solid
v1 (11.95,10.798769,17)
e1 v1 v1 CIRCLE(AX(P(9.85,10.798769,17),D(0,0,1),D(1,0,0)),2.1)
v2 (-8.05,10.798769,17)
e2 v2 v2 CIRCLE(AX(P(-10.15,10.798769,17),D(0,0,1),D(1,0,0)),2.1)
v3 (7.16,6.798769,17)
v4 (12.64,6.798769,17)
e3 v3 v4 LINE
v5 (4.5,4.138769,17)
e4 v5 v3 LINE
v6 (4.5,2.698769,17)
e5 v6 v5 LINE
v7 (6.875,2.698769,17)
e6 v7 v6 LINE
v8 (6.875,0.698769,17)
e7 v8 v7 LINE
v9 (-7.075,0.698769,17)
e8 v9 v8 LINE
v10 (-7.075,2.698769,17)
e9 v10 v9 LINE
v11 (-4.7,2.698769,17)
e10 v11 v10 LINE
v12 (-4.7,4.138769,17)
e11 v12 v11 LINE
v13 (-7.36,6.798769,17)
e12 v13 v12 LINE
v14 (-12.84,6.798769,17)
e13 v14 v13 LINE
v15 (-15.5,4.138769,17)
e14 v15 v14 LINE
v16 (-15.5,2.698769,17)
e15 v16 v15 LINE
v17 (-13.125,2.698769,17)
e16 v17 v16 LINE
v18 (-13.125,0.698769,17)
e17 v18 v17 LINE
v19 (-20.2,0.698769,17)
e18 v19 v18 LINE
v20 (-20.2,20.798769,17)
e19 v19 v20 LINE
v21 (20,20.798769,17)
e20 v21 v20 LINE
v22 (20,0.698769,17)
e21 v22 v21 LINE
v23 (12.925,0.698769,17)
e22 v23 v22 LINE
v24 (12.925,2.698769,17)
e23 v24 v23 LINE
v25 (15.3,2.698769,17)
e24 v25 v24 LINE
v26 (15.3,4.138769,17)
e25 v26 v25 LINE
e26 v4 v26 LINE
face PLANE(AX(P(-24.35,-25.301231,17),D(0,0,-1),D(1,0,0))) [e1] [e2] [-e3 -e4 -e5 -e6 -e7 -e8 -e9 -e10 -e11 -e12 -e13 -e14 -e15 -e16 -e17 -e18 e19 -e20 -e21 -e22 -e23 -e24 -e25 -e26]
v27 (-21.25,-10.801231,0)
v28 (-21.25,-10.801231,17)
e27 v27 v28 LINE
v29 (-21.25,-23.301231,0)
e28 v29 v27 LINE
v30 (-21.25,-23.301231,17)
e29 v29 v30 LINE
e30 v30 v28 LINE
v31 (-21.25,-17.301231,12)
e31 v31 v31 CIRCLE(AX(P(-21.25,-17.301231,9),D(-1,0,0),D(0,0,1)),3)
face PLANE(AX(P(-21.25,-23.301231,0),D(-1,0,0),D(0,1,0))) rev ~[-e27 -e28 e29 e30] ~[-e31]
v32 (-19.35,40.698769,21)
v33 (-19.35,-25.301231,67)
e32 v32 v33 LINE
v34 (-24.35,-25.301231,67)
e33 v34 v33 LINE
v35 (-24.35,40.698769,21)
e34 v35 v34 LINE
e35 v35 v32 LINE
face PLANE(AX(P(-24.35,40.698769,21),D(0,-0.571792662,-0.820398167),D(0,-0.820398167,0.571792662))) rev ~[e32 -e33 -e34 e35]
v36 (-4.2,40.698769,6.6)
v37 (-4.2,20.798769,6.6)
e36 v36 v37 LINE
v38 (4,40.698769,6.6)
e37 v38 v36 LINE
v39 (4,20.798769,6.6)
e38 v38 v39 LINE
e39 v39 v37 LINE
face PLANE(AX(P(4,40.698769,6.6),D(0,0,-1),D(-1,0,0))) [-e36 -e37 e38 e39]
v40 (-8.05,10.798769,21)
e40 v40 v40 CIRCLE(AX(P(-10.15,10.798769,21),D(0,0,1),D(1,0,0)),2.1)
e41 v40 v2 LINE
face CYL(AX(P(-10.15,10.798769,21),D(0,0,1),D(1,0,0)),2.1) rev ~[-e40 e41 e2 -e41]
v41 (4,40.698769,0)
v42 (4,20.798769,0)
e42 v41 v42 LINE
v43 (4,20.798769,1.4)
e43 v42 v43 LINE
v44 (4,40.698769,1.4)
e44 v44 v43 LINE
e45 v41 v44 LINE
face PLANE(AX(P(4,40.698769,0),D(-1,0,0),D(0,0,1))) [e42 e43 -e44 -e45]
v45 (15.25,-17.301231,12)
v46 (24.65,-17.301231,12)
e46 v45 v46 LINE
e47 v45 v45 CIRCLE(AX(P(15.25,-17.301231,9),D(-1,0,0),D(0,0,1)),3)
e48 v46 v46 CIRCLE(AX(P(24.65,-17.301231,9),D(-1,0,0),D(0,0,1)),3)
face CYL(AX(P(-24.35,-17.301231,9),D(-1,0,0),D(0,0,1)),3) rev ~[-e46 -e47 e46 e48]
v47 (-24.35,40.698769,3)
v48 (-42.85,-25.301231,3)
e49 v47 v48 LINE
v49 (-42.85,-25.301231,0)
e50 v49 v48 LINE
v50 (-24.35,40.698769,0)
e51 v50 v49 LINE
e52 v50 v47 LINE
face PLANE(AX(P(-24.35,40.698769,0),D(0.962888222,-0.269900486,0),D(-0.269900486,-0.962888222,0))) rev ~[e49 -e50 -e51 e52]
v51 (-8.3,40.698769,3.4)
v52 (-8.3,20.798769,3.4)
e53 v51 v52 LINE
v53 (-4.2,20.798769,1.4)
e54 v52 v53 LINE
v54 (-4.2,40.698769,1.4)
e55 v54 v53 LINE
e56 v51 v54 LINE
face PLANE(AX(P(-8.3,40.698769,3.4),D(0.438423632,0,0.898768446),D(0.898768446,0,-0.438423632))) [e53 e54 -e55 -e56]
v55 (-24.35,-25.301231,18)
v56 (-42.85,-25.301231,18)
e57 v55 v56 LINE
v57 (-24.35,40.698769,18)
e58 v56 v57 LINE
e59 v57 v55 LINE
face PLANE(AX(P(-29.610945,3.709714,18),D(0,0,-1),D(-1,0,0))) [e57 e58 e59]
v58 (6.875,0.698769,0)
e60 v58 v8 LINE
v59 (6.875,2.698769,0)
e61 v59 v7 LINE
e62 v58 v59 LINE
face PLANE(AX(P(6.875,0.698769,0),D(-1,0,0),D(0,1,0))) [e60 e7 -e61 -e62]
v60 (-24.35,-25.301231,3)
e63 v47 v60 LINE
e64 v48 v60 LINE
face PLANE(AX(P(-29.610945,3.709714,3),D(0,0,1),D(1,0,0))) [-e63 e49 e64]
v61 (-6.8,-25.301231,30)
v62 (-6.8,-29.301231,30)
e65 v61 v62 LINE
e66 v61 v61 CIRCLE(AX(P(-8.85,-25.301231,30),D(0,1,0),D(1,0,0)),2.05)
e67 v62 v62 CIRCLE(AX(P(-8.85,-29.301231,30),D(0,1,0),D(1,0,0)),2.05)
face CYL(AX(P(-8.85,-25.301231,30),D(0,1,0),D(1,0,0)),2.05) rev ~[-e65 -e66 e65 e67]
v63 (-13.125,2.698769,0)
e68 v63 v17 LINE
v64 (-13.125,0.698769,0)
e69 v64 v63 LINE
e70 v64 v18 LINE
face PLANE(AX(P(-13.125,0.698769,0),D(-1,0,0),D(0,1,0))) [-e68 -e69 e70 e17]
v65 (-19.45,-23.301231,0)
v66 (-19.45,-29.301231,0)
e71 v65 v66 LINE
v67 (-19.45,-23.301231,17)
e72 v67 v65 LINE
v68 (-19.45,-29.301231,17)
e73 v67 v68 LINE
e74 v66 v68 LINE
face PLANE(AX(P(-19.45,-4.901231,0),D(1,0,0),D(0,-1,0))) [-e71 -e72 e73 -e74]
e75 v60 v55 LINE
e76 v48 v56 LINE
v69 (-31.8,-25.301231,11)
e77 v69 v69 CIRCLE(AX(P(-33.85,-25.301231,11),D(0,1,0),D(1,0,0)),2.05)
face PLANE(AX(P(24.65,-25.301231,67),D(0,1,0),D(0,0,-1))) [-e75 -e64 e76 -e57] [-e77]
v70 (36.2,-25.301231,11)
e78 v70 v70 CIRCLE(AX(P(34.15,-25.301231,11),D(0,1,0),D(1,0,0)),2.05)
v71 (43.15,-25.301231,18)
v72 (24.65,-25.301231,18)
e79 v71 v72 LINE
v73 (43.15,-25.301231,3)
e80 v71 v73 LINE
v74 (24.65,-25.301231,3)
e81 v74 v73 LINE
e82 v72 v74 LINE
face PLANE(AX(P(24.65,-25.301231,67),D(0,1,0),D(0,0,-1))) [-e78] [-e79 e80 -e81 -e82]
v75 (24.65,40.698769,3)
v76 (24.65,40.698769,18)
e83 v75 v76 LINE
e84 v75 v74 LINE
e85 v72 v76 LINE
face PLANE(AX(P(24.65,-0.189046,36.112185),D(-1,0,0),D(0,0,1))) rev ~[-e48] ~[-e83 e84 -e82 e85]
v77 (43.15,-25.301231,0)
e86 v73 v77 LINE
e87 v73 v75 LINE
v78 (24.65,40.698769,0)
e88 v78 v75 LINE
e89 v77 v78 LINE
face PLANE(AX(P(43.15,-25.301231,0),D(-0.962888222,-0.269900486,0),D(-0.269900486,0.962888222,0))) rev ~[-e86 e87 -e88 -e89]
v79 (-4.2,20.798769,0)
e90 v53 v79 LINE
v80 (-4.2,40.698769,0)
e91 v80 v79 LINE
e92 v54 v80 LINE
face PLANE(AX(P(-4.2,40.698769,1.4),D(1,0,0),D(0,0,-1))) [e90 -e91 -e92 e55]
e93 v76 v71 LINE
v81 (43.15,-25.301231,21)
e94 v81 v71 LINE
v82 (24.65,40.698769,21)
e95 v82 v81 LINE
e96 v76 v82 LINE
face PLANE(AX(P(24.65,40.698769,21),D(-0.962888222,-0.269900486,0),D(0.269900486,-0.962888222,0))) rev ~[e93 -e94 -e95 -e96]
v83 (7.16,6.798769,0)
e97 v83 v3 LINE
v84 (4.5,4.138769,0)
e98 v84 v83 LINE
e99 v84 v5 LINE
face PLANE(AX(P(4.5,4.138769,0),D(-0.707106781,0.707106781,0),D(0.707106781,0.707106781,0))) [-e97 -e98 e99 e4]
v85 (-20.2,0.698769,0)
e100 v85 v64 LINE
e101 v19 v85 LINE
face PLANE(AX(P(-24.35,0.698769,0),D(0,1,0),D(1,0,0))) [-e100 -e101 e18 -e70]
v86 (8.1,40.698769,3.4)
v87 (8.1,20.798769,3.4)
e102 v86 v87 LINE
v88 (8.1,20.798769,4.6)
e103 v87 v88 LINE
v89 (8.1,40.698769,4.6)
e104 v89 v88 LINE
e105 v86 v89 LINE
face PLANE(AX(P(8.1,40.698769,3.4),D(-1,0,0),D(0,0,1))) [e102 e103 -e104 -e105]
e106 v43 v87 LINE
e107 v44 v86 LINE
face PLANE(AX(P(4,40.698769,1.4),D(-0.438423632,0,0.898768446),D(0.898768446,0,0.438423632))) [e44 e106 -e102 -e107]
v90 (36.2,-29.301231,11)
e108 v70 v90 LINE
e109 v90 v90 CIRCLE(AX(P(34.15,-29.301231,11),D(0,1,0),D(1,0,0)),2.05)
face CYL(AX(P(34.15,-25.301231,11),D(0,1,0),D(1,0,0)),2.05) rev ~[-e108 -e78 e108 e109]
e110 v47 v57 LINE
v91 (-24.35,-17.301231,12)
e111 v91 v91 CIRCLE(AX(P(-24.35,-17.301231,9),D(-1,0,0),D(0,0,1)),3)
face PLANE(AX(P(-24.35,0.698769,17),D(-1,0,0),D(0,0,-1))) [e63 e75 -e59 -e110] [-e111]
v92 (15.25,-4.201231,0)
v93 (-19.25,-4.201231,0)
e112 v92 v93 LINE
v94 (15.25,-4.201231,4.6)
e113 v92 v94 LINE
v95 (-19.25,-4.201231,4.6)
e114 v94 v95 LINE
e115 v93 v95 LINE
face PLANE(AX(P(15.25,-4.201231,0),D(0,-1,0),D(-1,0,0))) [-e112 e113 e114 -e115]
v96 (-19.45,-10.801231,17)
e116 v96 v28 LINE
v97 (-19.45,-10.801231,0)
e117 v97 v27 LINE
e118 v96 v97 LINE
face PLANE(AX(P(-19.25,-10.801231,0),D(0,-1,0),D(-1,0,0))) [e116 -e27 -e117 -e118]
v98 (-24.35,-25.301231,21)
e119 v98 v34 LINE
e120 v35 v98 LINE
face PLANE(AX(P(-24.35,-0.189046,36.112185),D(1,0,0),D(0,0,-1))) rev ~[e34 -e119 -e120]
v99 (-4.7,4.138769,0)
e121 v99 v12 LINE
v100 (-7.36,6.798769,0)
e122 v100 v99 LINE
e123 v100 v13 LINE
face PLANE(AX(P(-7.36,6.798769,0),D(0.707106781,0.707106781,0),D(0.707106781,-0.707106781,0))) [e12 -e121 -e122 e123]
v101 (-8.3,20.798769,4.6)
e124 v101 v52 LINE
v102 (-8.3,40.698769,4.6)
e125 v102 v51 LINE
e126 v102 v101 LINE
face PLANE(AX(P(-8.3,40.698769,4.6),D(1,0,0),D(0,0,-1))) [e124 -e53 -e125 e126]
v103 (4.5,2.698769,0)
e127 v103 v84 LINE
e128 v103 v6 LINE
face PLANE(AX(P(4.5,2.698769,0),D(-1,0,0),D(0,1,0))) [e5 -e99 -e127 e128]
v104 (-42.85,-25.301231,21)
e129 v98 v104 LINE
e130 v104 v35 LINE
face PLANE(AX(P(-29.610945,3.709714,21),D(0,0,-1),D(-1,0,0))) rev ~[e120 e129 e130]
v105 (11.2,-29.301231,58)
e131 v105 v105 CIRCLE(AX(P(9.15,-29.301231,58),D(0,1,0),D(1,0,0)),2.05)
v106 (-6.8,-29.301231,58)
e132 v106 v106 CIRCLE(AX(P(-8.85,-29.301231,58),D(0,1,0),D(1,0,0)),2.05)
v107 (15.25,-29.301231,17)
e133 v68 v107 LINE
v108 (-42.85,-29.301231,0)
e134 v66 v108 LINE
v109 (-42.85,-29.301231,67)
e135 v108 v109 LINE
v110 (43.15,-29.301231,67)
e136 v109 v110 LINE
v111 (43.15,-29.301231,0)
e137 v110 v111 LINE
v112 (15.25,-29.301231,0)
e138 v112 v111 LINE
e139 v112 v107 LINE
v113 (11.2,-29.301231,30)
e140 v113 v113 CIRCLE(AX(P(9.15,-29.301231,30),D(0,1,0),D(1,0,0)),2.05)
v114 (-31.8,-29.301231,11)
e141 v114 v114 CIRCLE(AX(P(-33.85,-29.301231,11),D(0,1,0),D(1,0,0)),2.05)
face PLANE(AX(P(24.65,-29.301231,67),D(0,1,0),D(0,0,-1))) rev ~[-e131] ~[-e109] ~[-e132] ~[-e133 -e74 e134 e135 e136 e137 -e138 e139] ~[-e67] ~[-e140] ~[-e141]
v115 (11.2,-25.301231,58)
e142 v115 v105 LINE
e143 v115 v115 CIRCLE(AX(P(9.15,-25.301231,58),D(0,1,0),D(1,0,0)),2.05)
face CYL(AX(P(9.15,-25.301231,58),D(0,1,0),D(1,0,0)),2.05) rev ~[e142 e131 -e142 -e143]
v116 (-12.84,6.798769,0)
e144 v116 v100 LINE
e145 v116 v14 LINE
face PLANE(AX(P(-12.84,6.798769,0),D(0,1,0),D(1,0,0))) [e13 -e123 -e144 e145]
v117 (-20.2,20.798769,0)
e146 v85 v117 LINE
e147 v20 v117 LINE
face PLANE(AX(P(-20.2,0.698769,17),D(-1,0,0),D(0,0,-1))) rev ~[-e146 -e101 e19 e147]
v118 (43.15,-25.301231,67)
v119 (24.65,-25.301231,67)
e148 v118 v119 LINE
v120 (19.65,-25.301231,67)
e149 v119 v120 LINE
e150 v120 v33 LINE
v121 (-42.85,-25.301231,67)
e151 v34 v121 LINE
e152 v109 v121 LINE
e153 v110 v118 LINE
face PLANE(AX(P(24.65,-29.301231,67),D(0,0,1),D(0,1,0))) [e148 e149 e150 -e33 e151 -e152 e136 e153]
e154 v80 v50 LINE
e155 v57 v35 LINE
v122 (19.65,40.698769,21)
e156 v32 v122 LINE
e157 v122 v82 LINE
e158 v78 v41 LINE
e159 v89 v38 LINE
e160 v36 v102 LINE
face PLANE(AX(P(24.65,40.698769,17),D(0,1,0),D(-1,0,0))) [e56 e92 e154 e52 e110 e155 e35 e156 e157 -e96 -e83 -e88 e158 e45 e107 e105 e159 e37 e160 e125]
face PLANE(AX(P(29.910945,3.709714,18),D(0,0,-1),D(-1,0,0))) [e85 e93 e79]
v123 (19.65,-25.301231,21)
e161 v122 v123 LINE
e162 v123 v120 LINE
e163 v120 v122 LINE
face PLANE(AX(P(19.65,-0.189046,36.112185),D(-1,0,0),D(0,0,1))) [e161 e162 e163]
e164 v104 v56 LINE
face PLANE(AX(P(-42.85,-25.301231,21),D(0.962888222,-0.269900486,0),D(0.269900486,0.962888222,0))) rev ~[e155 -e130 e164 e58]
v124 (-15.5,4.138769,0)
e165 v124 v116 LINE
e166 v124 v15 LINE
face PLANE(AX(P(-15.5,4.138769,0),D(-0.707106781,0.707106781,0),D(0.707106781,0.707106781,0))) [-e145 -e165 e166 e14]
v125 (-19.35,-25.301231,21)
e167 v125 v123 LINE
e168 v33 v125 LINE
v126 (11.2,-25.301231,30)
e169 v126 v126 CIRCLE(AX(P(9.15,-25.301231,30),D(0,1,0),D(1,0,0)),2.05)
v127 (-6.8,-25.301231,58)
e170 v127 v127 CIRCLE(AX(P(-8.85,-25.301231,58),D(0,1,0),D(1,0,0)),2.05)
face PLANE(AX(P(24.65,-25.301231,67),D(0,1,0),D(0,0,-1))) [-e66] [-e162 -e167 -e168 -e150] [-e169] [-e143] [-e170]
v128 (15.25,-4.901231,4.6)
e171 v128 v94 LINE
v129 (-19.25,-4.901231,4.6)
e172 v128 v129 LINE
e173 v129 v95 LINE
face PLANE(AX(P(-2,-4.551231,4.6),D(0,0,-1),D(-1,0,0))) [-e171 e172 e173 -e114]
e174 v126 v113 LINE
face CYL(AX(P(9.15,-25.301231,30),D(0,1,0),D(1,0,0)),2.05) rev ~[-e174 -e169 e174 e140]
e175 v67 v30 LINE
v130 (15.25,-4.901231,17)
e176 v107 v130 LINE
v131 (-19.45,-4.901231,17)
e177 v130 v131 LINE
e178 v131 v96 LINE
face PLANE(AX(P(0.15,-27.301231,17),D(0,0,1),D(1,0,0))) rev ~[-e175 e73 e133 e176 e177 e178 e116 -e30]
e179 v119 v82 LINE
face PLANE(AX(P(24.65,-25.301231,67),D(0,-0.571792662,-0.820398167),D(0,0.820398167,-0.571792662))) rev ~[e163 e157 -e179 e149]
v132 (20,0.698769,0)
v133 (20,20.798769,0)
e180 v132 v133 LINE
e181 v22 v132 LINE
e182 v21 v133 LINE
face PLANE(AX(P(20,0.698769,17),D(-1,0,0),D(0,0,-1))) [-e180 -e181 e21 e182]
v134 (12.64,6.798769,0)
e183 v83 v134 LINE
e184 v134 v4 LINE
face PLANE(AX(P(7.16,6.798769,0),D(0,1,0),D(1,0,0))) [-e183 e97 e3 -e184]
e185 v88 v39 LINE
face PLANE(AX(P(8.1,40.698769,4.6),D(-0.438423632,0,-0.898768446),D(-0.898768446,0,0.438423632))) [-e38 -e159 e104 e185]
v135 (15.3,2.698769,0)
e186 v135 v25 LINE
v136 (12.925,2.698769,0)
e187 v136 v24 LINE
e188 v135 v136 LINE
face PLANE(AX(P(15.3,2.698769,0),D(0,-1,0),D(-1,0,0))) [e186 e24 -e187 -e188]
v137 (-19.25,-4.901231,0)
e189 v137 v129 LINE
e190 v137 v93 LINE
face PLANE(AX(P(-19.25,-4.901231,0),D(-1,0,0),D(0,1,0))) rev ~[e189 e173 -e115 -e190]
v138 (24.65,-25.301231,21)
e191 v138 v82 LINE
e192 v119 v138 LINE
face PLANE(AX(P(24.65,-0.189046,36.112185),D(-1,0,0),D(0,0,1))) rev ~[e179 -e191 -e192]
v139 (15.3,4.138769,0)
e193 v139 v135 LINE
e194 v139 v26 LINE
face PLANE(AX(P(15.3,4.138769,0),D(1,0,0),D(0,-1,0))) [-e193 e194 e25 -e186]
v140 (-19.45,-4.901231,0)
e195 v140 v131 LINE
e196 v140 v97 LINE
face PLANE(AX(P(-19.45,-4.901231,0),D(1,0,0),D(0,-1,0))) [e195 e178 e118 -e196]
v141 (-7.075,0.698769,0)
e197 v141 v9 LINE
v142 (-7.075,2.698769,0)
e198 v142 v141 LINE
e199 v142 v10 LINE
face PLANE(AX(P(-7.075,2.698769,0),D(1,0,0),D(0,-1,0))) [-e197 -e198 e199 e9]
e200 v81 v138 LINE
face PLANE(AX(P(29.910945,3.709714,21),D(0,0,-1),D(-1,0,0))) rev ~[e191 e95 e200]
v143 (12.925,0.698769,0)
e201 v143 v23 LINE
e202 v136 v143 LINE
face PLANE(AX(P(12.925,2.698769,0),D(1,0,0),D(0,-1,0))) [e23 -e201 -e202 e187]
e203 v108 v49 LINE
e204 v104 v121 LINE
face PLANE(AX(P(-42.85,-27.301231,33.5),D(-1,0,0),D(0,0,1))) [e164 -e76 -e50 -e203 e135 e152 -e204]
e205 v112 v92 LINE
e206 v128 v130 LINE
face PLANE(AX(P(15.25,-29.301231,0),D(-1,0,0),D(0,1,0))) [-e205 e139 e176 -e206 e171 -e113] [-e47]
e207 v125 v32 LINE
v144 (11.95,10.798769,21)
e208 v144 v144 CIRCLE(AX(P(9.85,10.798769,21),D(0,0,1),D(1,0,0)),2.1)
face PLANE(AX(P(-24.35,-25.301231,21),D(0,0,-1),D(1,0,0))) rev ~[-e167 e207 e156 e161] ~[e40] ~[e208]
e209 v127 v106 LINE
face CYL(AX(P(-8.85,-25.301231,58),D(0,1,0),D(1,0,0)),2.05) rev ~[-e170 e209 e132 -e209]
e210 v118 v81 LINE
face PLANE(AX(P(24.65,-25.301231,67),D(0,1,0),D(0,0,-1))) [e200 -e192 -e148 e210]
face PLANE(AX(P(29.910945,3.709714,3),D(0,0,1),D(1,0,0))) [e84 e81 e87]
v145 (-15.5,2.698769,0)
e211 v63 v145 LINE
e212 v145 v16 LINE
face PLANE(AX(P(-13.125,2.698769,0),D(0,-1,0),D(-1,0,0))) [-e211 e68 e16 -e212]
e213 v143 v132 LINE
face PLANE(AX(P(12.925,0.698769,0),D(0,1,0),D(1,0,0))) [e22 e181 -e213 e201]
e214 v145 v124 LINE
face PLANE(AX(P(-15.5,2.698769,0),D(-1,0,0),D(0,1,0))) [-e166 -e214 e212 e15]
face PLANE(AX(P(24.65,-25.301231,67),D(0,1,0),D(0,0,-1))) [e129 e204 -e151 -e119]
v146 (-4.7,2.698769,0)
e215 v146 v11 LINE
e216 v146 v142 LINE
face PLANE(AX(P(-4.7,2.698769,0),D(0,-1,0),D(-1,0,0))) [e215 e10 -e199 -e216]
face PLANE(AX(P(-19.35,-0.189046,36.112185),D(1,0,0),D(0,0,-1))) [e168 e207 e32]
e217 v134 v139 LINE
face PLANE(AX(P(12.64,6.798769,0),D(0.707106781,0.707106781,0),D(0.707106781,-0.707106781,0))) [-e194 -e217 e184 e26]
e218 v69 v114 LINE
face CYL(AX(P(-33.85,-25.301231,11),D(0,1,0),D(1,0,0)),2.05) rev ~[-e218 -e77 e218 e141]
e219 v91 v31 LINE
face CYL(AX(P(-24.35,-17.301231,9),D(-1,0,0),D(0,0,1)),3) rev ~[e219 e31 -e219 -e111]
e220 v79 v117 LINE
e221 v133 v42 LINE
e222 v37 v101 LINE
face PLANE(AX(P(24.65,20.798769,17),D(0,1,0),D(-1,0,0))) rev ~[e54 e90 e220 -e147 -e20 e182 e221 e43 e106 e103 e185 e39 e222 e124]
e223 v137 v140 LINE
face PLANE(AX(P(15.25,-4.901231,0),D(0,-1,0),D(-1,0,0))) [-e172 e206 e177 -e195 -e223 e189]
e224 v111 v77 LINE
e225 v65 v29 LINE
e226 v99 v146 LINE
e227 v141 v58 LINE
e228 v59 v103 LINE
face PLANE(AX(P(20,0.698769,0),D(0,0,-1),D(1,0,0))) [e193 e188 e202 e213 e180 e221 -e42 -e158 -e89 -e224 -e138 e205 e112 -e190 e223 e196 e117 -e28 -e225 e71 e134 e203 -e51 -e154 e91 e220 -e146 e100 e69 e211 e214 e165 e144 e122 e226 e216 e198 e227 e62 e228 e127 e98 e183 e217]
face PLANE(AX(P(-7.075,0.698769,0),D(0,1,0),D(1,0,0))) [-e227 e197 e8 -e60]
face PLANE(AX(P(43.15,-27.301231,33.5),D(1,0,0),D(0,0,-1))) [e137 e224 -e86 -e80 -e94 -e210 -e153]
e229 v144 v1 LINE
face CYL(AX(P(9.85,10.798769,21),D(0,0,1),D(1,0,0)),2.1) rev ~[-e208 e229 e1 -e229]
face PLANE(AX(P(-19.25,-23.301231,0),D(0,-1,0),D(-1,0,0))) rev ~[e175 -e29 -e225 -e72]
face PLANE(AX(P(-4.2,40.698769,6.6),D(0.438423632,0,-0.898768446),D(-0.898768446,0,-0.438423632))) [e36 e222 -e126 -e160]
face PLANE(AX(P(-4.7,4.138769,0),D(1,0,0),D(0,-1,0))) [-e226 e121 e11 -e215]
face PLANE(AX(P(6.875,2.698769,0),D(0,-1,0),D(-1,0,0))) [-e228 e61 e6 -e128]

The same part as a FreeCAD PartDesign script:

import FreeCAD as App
import Part
import Sketcher

V = App.Vector


def add_polygon(sketch, points):
    """Adds a closed chain of lines whose ends are joined by coincident constraints."""
    first, n = sketch.GeometryCount, len(points)
    for a, b in zip(points, points[1:] + points[:1]):
        sketch.addGeometry(Part.LineSegment(App.Vector(*a, 0), App.Vector(*b, 0)), False)
    for i in range(n):
        sketch.addConstraint(Sketcher.Constraint("Coincident", first + i, 2, first + (i + 1) % n, 1))

doc = App.newDocument("Part")
body = doc.addObject("PartDesign::Body", "Body")

sketch1 = body.newObject("Sketcher::SketchObject", "Sketch")
sketch1.AttachmentSupport = (doc.getObject("XY_Plane"), [""])
sketch1.MapMode = "FlatFace"
add_polygon(sketch1, [(-15.5, 2.7), (-13.1, 2.7), (-13.1, 0.7), (-24.4, 0.7), (-24.4, -29.3), (-19.4, -29.3), (-19.4, -4.9), (15.2, -4.9), (15.2, -29.3), (24.6, -29.3), (24.6, 0.7), (12.9, 0.7), (12.9, 2.7), (15.3, 2.7), (15.3, 4.1), (12.6, 6.8), (7.2, 6.8), (4.5, 4.1), (4.5, 2.7), (6.9, 2.7), (6.9, 0.7), (-7.1, 0.7), (-7.1, 2.7), (-4.7, 2.7), (-4.7, 4.1), (-7.4, 6.8), (-12.8, 6.8), (-15.5, 4.1)])
sketch1.addConstraint([
    Sketcher.Constraint("Horizontal", 0),
    Sketcher.Constraint("Vertical", 1),
    Sketcher.Constraint("Horizontal", 2),
    Sketcher.Constraint("Vertical", 3),
    Sketcher.Constraint("Horizontal", 4),
    Sketcher.Constraint("Vertical", 5),
    Sketcher.Constraint("Horizontal", 6),
    Sketcher.Constraint("Vertical", 7),
    Sketcher.Constraint("Horizontal", 8),
    Sketcher.Constraint("Vertical", 9),
    Sketcher.Constraint("Horizontal", 10),
    Sketcher.Constraint("Vertical", 11),
    Sketcher.Constraint("Horizontal", 12),
    Sketcher.Constraint("Vertical", 13),
    Sketcher.Constraint("Horizontal", 15),
    Sketcher.Constraint("Vertical", 17),
    Sketcher.Constraint("Horizontal", 18),
    Sketcher.Constraint("Vertical", 19),
    Sketcher.Constraint("Horizontal", 20),
    Sketcher.Constraint("Vertical", 21),
    Sketcher.Constraint("Horizontal", 22),
    Sketcher.Constraint("Vertical", 23),
    Sketcher.Constraint("Horizontal", 25),
    Sketcher.Constraint("Vertical", 27),
    Sketcher.Constraint("Perpendicular", 14, 16),
    Sketcher.Constraint("Perpendicular", 16, 24),
    Sketcher.Constraint("Perpendicular", 24, 26),
    Sketcher.Constraint("Horizontal", 4, 2, 7, 2),
    Sketcher.Constraint("Horizontal", 2, 2, 9, 2),
    Sketcher.Constraint("Horizontal", 0, 2, 11, 2),
    Sketcher.Constraint("Horizontal", 13, 2, 16, 2),
    Sketcher.Constraint("Horizontal", 12, 2, 17, 2),
    Sketcher.Constraint("Horizontal", 10, 2, 19, 2),
    Sketcher.Constraint("Horizontal", 18, 2, 21, 2),
    Sketcher.Constraint("Horizontal", 16, 2, 23, 2),
    Sketcher.Constraint("Horizontal", 15, 2, 24, 2),
    Sketcher.Constraint("Horizontal", 23, 2, 26, 2),
    Sketcher.Constraint("Equal", 0, 12),
    Sketcher.Constraint("Equal", 12, 18),
    Sketcher.Constraint("Equal", 18, 22),
    Sketcher.Constraint("Equal", 15, 25),
    Sketcher.Constraint("Equal", 14, 16),
    Sketcher.Constraint("DistanceY", 1, 2, 1, 1, 2.0),
    Sketcher.Constraint("DistanceY", 3, 2, 3, 1, 30.0),
    Sketcher.Constraint("DistanceX", 4, 1, 4, 2, 4.9),
    Sketcher.Constraint("DistanceX", 6, 1, 6, 2, 34.7),
    Sketcher.Constraint("DistanceX", 8, 1, 8, 2, 9.4),
    Sketcher.Constraint("DistanceY", 5, 1, 5, 2, 24.4),
    Sketcher.Constraint("DistanceX", 15, 2, 15, 1, 5.48),
    Sketcher.Constraint("DistanceX", 20, 2, 20, 1, 13.95),
    Sketcher.Constraint("DistanceY", 13, 1, 13, 2, 1.44),
    Sketcher.Constraint("DistanceX", -1, 1, 12, 2, 15.3),
    Sketcher.Constraint("DistanceX", -1, 1, 16, 2, 4.5),
    Sketcher.Constraint("DistanceX", 22, 2, -1, 1, 4.7),
    Sketcher.Constraint("DistanceX", 2, 2, 2, 1, 11.225),
    Sketcher.Constraint("DistanceY", -1, 1, 0, 2, 2.698769),
])
pad1 = body.newObject("PartDesign::Pad", "Pad")
pad1.Profile = sketch1
pad1.Length = 17

sketch2 = body.newObject("Sketcher::SketchObject", "Sketch001")
sketch2.AttachmentSupport = (doc.getObject("YZ_Plane"), [""])
sketch2.MapMode = "FlatFace"
sketch2.AttachmentOffset = App.Placement(V(0, 0, -24.35), App.Rotation())
sketch2.addGeometry(Part.Circle(V(-17.3, 9, 0), V(0, 0, 1), 3), False)
sketch2.addConstraint([
    Sketcher.Constraint("Diameter", 0, 6.0),
    Sketcher.Constraint("DistanceY", -1, 1, 0, 3, 9.0),
    Sketcher.Constraint("DistanceX", 0, 3, -1, 1, 17.301231),
])
pocket1 = body.newObject("PartDesign::Pocket", "Pocket")
pocket1.Profile = sketch2
pocket1.Length = 49
pocket1.Reversed = True

sketch3 = body.newObject("Sketcher::SketchObject", "Sketch002")
sketch3.AttachmentSupport = (doc.getObject("XY_Plane"), [""])
sketch3.MapMode = "FlatFace"
sketch3.AttachmentOffset = App.Placement(V(0, 0, 17), App.Rotation())
add_polygon(sketch3, [(-24.4, -25.3), (-24.4, -29.3), (24.6, -29.3), (24.6, -25.3)])
sketch3.addConstraint([
    Sketcher.Constraint("Vertical", 0),
    Sketcher.Constraint("Horizontal", 1),
    Sketcher.Constraint("Vertical", 2),
    Sketcher.Constraint("Horizontal", 3),
    Sketcher.Constraint("DistanceX", 1, 1, 1, 2, 49.0),
    Sketcher.Constraint("DistanceY", 0, 2, 0, 1, 4.0),
    Sketcher.Constraint("DistanceX", 0, 2, -1, 1, 24.35),
    Sketcher.Constraint("DistanceY", 0, 2, -1, 1, 29.301231),
])
pad2 = body.newObject("PartDesign::Pad", "Pad001")
pad2.Profile = sketch3
pad2.Length = 50

sketch4 = body.newObject("Sketcher::SketchObject", "Sketch003")
sketch4.AttachmentSupport = (doc.getObject("YZ_Plane"), [""])
sketch4.MapMode = "FlatFace"
sketch4.AttachmentOffset = App.Placement(V(0, 0, -24.35), App.Rotation())
add_polygon(sketch4, [(-25.3, 0), (-29.3, 0), (-29.3, 67), (-25.3, 67)])
sketch4.addConstraint([
    Sketcher.Constraint("Horizontal", 0),
    Sketcher.Constraint("Vertical", 1),
    Sketcher.Constraint("Horizontal", 2),
    Sketcher.Constraint("Vertical", 3),
    Sketcher.Constraint("PointOnObject", 0, 2, -1),
    Sketcher.Constraint("DistanceX", 0, 2, 0, 1, 4.0),
    Sketcher.Constraint("DistanceY", 1, 1, 1, 2, 67.0),
    Sketcher.Constraint("DistanceX", 0, 2, -1, 1, 29.301231),
])
pad3 = body.newObject("PartDesign::Pad", "Pad002")
pad3.Profile = sketch4
pad3.Length = 18.5
pad3.Reversed = True

sketch5 = body.newObject("Sketcher::SketchObject", "Sketch004")
sketch5.AttachmentSupport = (doc.getObject("YZ_Plane"), [""])
sketch5.MapMode = "FlatFace"
sketch5.AttachmentOffset = App.Placement(V(0, 0, 24.65), App.Rotation())
add_polygon(sketch5, [(-25.3, 67), (-29.3, 67), (-29.3, 0), (-25.3, 0)])
sketch5.addConstraint([
    Sketcher.Constraint("Horizontal", 0),
    Sketcher.Constraint("Vertical", 1),
    Sketcher.Constraint("Horizontal", 2),
    Sketcher.Constraint("Vertical", 3),
    Sketcher.Constraint("PointOnObject", 1, 2, -1),
    Sketcher.Constraint("DistanceX", 0, 2, 0, 1, 4.0),
    Sketcher.Constraint("DistanceY", 1, 2, 1, 1, 67.0),
    Sketcher.Constraint("DistanceX", 0, 2, -1, 1, 29.301231),
])
pad4 = body.newObject("PartDesign::Pad", "Pad003")
pad4.Profile = sketch5
pad4.Length = 18.5

sketch6 = body.newObject("Sketcher::SketchObject", "Sketch005")
sketch6.AttachmentSupport = (doc.getObject("XZ_Plane"), [""])
sketch6.MapMode = "FlatFace"
sketch6.AttachmentOffset = App.Placement(V(0, 0, 25.301231), App.Rotation())
add_polygon(sketch6, [(-24.4, 17), (-24.4, 21), (24.6, 21), (24.6, 17)])
sketch6.addConstraint([
    Sketcher.Constraint("Vertical", 0),
    Sketcher.Constraint("Horizontal", 1),
    Sketcher.Constraint("Vertical", 2),
    Sketcher.Constraint("Horizontal", 3),
    Sketcher.Constraint("DistanceX", 1, 1, 1, 2, 49.0),
    Sketcher.Constraint("DistanceY", 0, 1, 0, 2, 4.0),
    Sketcher.Constraint("DistanceY", -1, 1, 0, 2, 21.0),
    Sketcher.Constraint("DistanceX", 0, 2, -1, 1, 24.35),
])
pad5 = body.newObject("PartDesign::Pad", "Pad004")
pad5.Profile = sketch6
pad5.Length = 66
pad5.Reversed = True

sketch7 = body.newObject("Sketcher::SketchObject", "Sketch006")
sketch7.AttachmentSupport = (doc.getObject("XY_Plane"), [""])
sketch7.MapMode = "FlatFace"
sketch7.AttachmentOffset = App.Placement(V(0, 0, 17), App.Rotation())
add_polygon(sketch7, [(25, 41), (25, 21), (-24, 21), (-24, 41)])
sketch7.addConstraint([
    Sketcher.Constraint("Vertical", 0),
    Sketcher.Constraint("Horizontal", 1),
    Sketcher.Constraint("Vertical", 2),
    Sketcher.Constraint("Horizontal", 3),
    Sketcher.Constraint("DistanceX", 1, 2, 1, 1, 49.0),
    Sketcher.Constraint("DistanceY", 0, 2, 0, 1, 19.9),
    Sketcher.Constraint("DistanceX", -1, 1, 0, 2, 24.65),
    Sketcher.Constraint("DistanceY", -1, 1, 0, 2, 20.798769),
])
pad6 = body.newObject("PartDesign::Pad", "Pad005")
pad6.Profile = sketch7
pad6.Length = 17
pad6.Reversed = True

sketch8 = body.newObject("Sketcher::SketchObject", "Sketch007")
sketch8.AttachmentSupport = (doc.getObject("XZ_Plane"), [""])
sketch8.MapMode = "FlatFace"
sketch8.AttachmentOffset = App.Placement(V(0, 0, 25.301231), App.Rotation())
sketch8.addGeometry(Part.Circle(V(-8.8, 58, 0), V(0, 0, 1), 2), False)
sketch8.addConstraint([
    Sketcher.Constraint("Diameter", 0, 4.1),
    Sketcher.Constraint("DistanceY", -1, 1, 0, 3, 58.0),
    Sketcher.Constraint("DistanceX", 0, 3, -1, 1, 8.85),
])
pocket2 = body.newObject("PartDesign::Pocket", "Pocket001")
pocket2.Profile = sketch8
pocket2.Type = "UpToFirst"
pocket2.Reversed = True

sketch9 = body.newObject("Sketcher::SketchObject", "Sketch008")
sketch9.AttachmentSupport = (doc.getObject("XZ_Plane"), [""])
sketch9.MapMode = "FlatFace"
sketch9.AttachmentOffset = App.Placement(V(0, 0, 25.301231), App.Rotation())
sketch9.addGeometry(Part.Circle(V(9.2, 58, 0), V(0, 0, 1), 2), False)
sketch9.addConstraint([
    Sketcher.Constraint("Diameter", 0, 4.1),
    Sketcher.Constraint("DistanceY", -1, 1, 0, 3, 58.0),
    Sketcher.Constraint("DistanceX", -1, 1, 0, 3, 9.15),
])
pocket3 = body.newObject("PartDesign::Pocket", "Pocket002")
pocket3.Profile = sketch9
pocket3.Type = "UpToFirst"
pocket3.Reversed = True

sketch10 = body.newObject("Sketcher::SketchObject", "Sketch009")
sketch10.AttachmentSupport = (doc.getObject("XZ_Plane"), [""])
sketch10.MapMode = "FlatFace"
sketch10.AttachmentOffset = App.Placement(V(0, 0, 25.301231), App.Rotation())
sketch10.addGeometry(Part.Circle(V(-33.9, 11, 0), V(0, 0, 1), 2), False)
sketch10.addConstraint([
    Sketcher.Constraint("Diameter", 0, 4.1),
    Sketcher.Constraint("DistanceY", -1, 1, 0, 3, 11.0),
    Sketcher.Constraint("DistanceX", 0, 3, -1, 1, 33.85),
])
pocket4 = body.newObject("PartDesign::Pocket", "Pocket003")
pocket4.Profile = sketch10
pocket4.Type = "UpToFirst"
pocket4.Reversed = True

sketch11 = body.newObject("Sketcher::SketchObject", "Sketch010")
sketch11.AttachmentSupport = (doc.getObject("XZ_Plane"), [""])
sketch11.MapMode = "FlatFace"
sketch11.AttachmentOffset = App.Placement(V(0, 0, 25.301231), App.Rotation())
sketch11.addGeometry(Part.Circle(V(34.1, 11, 0), V(0, 0, 1), 2), False)
sketch11.addConstraint([
    Sketcher.Constraint("Diameter", 0, 4.1),
    Sketcher.Constraint("DistanceY", -1, 1, 0, 3, 11.0),
    Sketcher.Constraint("DistanceX", -1, 1, 0, 3, 34.15),
])
pocket5 = body.newObject("PartDesign::Pocket", "Pocket004")
pocket5.Profile = sketch11
pocket5.Type = "UpToFirst"
pocket5.Reversed = True

sketch12 = body.newObject("Sketcher::SketchObject", "Sketch011")
sketch12.AttachmentSupport = (doc.getObject("XZ_Plane"), [""])
sketch12.MapMode = "FlatFace"
sketch12.AttachmentOffset = App.Placement(V(0, 0, 25.301231), App.Rotation())
sketch12.addGeometry(Part.Circle(V(-8.8, 30, 0), V(0, 0, 1), 2), False)
sketch12.addConstraint([
    Sketcher.Constraint("Diameter", 0, 4.1),
    Sketcher.Constraint("DistanceY", -1, 1, 0, 3, 30.0),
    Sketcher.Constraint("DistanceX", 0, 3, -1, 1, 8.85),
])
pocket6 = body.newObject("PartDesign::Pocket", "Pocket005")
pocket6.Profile = sketch12
pocket6.Type = "UpToFirst"
pocket6.Reversed = True

sketch13 = body.newObject("Sketcher::SketchObject", "Sketch012")
sketch13.AttachmentSupport = (doc.getObject("XZ_Plane"), [""])
sketch13.MapMode = "FlatFace"
sketch13.AttachmentOffset = App.Placement(V(0, 0, 25.301231), App.Rotation())
sketch13.addGeometry(Part.Circle(V(9.2, 30, 0), V(0, 0, 1), 2), False)
sketch13.addConstraint([
    Sketcher.Constraint("Diameter", 0, 4.1),
    Sketcher.Constraint("DistanceY", -1, 1, 0, 3, 30.0),
    Sketcher.Constraint("DistanceX", -1, 1, 0, 3, 9.15),
])
pocket7 = body.newObject("PartDesign::Pocket", "Pocket006")
pocket7.Profile = sketch13
pocket7.Type = "UpToFirst"
pocket7.Reversed = True

sketch14 = body.newObject("Sketcher::SketchObject", "Sketch013")
sketch14.AttachmentSupport = (doc.getObject("YZ_Plane"), [""])
sketch14.MapMode = "FlatFace"
sketch14.AttachmentOffset = App.Placement(V(0, 0, -24.35), App.Rotation())
add_polygon(sketch14, [(41, 21), (-25, 21), (-25, 67)])
sketch14.addConstraint([
    Sketcher.Constraint("Horizontal", 0),
    Sketcher.Constraint("Vertical", 1),
    Sketcher.Constraint("DistanceX", 0, 2, 0, 1, 66.0),
    Sketcher.Constraint("DistanceY", 1, 1, 1, 2, 46.0),
    Sketcher.Constraint("DistanceY", -1, 1, 0, 2, 21.0),
    Sketcher.Constraint("DistanceX", 0, 2, -1, 1, 25.301231),
])
pad7 = body.newObject("PartDesign::Pad", "Pad006")
pad7.Profile = sketch14
pad7.Length = 5

sketch15 = body.newObject("Sketcher::SketchObject", "Sketch014")
sketch15.AttachmentSupport = (doc.getObject("YZ_Plane"), [""])
sketch15.MapMode = "FlatFace"
sketch15.AttachmentOffset = App.Placement(V(0, 0, 24.65), App.Rotation())
add_polygon(sketch15, [(41, 21), (-25, 67), (-25, 21)])
sketch15.addConstraint([
    Sketcher.Constraint("Vertical", 1),
    Sketcher.Constraint("Horizontal", 2),
    Sketcher.Constraint("DistanceX", 2, 1, 2, 2, 66.0),
    Sketcher.Constraint("DistanceY", 1, 2, 1, 1, 46.0),
    Sketcher.Constraint("DistanceY", -1, 1, 0, 2, 67.0),
    Sketcher.Constraint("DistanceX", 0, 2, -1, 1, 25.301231),
])
pad8 = body.newObject("PartDesign::Pad", "Pad007")
pad8.Profile = sketch15
pad8.Length = 5
pad8.Reversed = True

sketch16 = body.newObject("Sketcher::SketchObject", "Sketch015")
sketch16.AttachmentSupport = (doc.getObject("XY_Plane"), [""])
sketch16.MapMode = "FlatFace"
sketch16.AttachmentOffset = App.Placement(V(0, 0, 21), App.Rotation())
sketch16.addGeometry(Part.Circle(V(9.8, 10.8, 0), V(0, 0, 1), 2.1), False)
sketch16.addConstraint([
    Sketcher.Constraint("Diameter", 0, 4.2),
    Sketcher.Constraint("DistanceX", -1, 1, 0, 3, 9.85),
    Sketcher.Constraint("DistanceY", -1, 1, 0, 3, 10.798769),
])
pocket8 = body.newObject("PartDesign::Pocket", "Pocket007")
pocket8.Profile = sketch16
pocket8.Type = "UpToFirst"

sketch17 = body.newObject("Sketcher::SketchObject", "Sketch016")
sketch17.AttachmentSupport = (doc.getObject("XY_Plane"), [""])
sketch17.MapMode = "FlatFace"
sketch17.AttachmentOffset = App.Placement(V(0, 0, 21), App.Rotation())
sketch17.addGeometry(Part.Circle(V(-10.2, 10.8, 0), V(0, 0, 1), 2.1), False)
sketch17.addConstraint([
    Sketcher.Constraint("Diameter", 0, 4.2),
    Sketcher.Constraint("DistanceX", 0, 3, -1, 1, 10.15),
    Sketcher.Constraint("DistanceY", -1, 1, 0, 3, 10.798769),
])
pocket9 = body.newObject("PartDesign::Pocket", "Pocket008")
pocket9.Profile = sketch17
pocket9.Type = "UpToFirst"

sketch18 = body.newObject("Sketcher::SketchObject", "Sketch017")
sketch18.AttachmentSupport = (doc.getObject("XY_Plane"), [""])
sketch18.MapMode = "FlatFace"
add_polygon(sketch18, [(15.2, -4.2), (15.2, -4.9), (-19.2, -4.9), (-19.2, -4.2)])
sketch18.addConstraint([
    Sketcher.Constraint("Vertical", 0),
    Sketcher.Constraint("Horizontal", 1),
    Sketcher.Constraint("Vertical", 2),
    Sketcher.Constraint("Horizontal", 3),
    Sketcher.Constraint("DistanceX", 1, 2, 1, 1, 34.5),
    Sketcher.Constraint("DistanceY", 0, 2, 0, 1, 0.7),
    Sketcher.Constraint("DistanceX", -1, 1, 0, 2, 15.25),
    Sketcher.Constraint("DistanceY", 0, 2, -1, 1, 4.901231),
])
pocket10 = body.newObject("PartDesign::Pocket", "Pocket009")
pocket10.Profile = sketch18
pocket10.Length = 4.6
pocket10.Reversed = True

sketch19 = body.newObject("Sketcher::SketchObject", "Sketch018")
sketch19.AttachmentSupport = (doc.getObject("XY_Plane"), [""])
sketch19.MapMode = "FlatFace"
add_polygon(sketch19, [(25, -25), (25, 41), (43, -25)])
add_polygon(sketch19, [(-24, -25), (-43, -25), (-24, 41)])
sketch19.addConstraint([
    Sketcher.Constraint("Vertical", 0),
    Sketcher.Constraint("Horizontal", 2),
    Sketcher.Constraint("Horizontal", 3),
    Sketcher.Constraint("Vertical", 5),
    Sketcher.Constraint("Horizontal", 2, 2, 3, 2),
    Sketcher.Constraint("Horizontal", 0, 2, 4, 2),
    Sketcher.Constraint("Equal", 2, 3),
    Sketcher.Constraint("DistanceY", 0, 1, 0, 2, 66.0),
    Sketcher.Constraint("DistanceX", 2, 2, 2, 1, 18.5),
    Sketcher.Constraint("DistanceX", 3, 2, 1, 2, 86.0),
    Sketcher.Constraint("DistanceX", -1, 1, 0, 2, 24.65),
    Sketcher.Constraint("DistanceY", -1, 1, 0, 2, 40.698769),
])
pad9 = body.newObject("PartDesign::Pad", "Pad008")
pad9.Profile = sketch19
pad9.Length = 3

sketch20 = body.newObject("Sketcher::SketchObject", "Sketch019")
sketch20.AttachmentSupport = (doc.getObject("XY_Plane"), [""])
sketch20.MapMode = "FlatFace"
sketch20.AttachmentOffset = App.Placement(V(0, 0, 21), App.Rotation())
add_polygon(sketch20, [(25, -25), (43, -25), (25, 41)])
add_polygon(sketch20, [(-43, -25), (-24, -25), (-24, 41)])
sketch20.addConstraint([
    Sketcher.Constraint("Horizontal", 0),
    Sketcher.Constraint("Vertical", 2),
    Sketcher.Constraint("Horizontal", 3),
    Sketcher.Constraint("Vertical", 4),
    Sketcher.Constraint("Horizontal", 2, 2, 3, 2),
    Sketcher.Constraint("Horizontal", 1, 2, 4, 2),
    Sketcher.Constraint("Equal", 0, 3),
    Sketcher.Constraint("DistanceY", 2, 2, 2, 1, 66.0),
    Sketcher.Constraint("DistanceX", 0, 1, 0, 2, 18.5),
    Sketcher.Constraint("DistanceX", 3, 2, 2, 2, 49.0),
    Sketcher.Constraint("DistanceX", -1, 1, 0, 2, 43.15),
    Sketcher.Constraint("DistanceY", 0, 2, -1, 1, 25.301231),
])
pad10 = body.newObject("PartDesign::Pad", "Pad009")
pad10.Profile = sketch20
pad10.Length = 3
pad10.Reversed = True

sketch21 = body.newObject("Sketcher::SketchObject", "Sketch020")
sketch21.AttachmentSupport = (doc.getObject("XZ_Plane"), [""])
sketch21.MapMode = "FlatFace"
sketch21.AttachmentOffset = App.Placement(V(0, 0, -0.698769), App.Rotation())
add_polygon(sketch21, [(-24.4, 0), (-24.4, 17), (-20.2, 17), (-20.2, 0)])
sketch21.addConstraint([
    Sketcher.Constraint("Vertical", 0),
    Sketcher.Constraint("Horizontal", 1),
    Sketcher.Constraint("Vertical", 2),
    Sketcher.Constraint("Horizontal", 3),
    Sketcher.Constraint("PointOnObject", 2, 2, -1),
    Sketcher.Constraint("DistanceY", 0, 1, 0, 2, 17.0),
    Sketcher.Constraint("DistanceX", 1, 1, 1, 2, 4.15),
    Sketcher.Constraint("DistanceX", 1, 2, -1, 1, 20.2),
])
pad11 = body.newObject("PartDesign::Pad", "Pad010")
pad11.Profile = sketch21
pad11.Type = "UpToFirst"
pad11.Reversed = True

sketch22 = body.newObject("Sketcher::SketchObject", "Sketch021")
sketch22.AttachmentSupport = (doc.getObject("XZ_Plane"), [""])
sketch22.MapMode = "FlatFace"
sketch22.AttachmentOffset = App.Placement(V(0, 0, -0.698769), App.Rotation())
add_polygon(sketch22, [(20, 0), (20, 17), (24.6, 17), (24.6, 0)])
sketch22.addConstraint([
    Sketcher.Constraint("Vertical", 0),
    Sketcher.Constraint("Horizontal", 1),
    Sketcher.Constraint("Vertical", 2),
    Sketcher.Constraint("Horizontal", 3),
    Sketcher.Constraint("PointOnObject", 2, 2, -1),
    Sketcher.Constraint("DistanceY", 0, 1, 0, 2, 17.0),
    Sketcher.Constraint("DistanceX", -1, 1, 0, 2, 20.0),
    Sketcher.Constraint("DistanceX", 1, 1, 1, 2, 4.65),
])
pad12 = body.newObject("PartDesign::Pad", "Pad011")
pad12.Profile = sketch22
pad12.Type = "UpToFirst"
pad12.Reversed = True

sketch23 = body.newObject("Sketcher::SketchObject", "Sketch022")
sketch23.AttachmentSupport = (doc.getObject("XY_Plane"), [""])
sketch23.MapMode = "FlatFace"
add_polygon(sketch23, [(-19.2, -10.8), (-19.2, -23.3), (-21.2, -23.3), (-21.2, -10.8)])
sketch23.addConstraint([
    Sketcher.Constraint("Vertical", 0),
    Sketcher.Constraint("Horizontal", 1),
    Sketcher.Constraint("Vertical", 2),
    Sketcher.Constraint("Horizontal", 3),
    Sketcher.Constraint("DistanceX", 1, 2, 1, 1, 2.0),
    Sketcher.Constraint("DistanceY", 0, 2, 0, 1, 12.5),
    Sketcher.Constraint("DistanceX", 0, 2, -1, 1, 19.25),
    Sketcher.Constraint("DistanceY", 0, 2, -1, 1, 23.301231),
])
pocket11 = body.newObject("PartDesign::Pocket", "Pocket010")
pocket11.Profile = sketch23
pocket11.Length = 17
pocket11.Reversed = True

sketch24 = body.newObject("Sketcher::SketchObject", "Sketch023")
sketch24.AttachmentSupport = (doc.getObject("XZ_Plane"), [""])
sketch24.MapMode = "FlatFace"
sketch24.AttachmentOffset = App.Placement(V(0, 0, -40.698769), App.Rotation())
add_polygon(sketch24, [(4, 0), (-4.2, 0), (-4.2, 1.4), (-8.3, 3.4), (-8.3, 4.6), (-4.2, 6.6), (4, 6.6), (8.1, 4.6), (8.1, 3.4), (4, 1.4)])
sketch24.addConstraint([
    Sketcher.Constraint("Horizontal", 0),
    Sketcher.Constraint("Vertical", 1),
    Sketcher.Constraint("Vertical", 3),
    Sketcher.Constraint("Horizontal", 5),
    Sketcher.Constraint("Vertical", 7),
    Sketcher.Constraint("Vertical", 9),
    Sketcher.Constraint("PointOnObject", 0, 2, -1),
    Sketcher.Constraint("Parallel", 2, 6),
    Sketcher.Constraint("Parallel", 4, 8),
    Sketcher.Constraint("Horizontal", 3, 2, 6, 2),
    Sketcher.Constraint("Horizontal", 2, 2, 7, 2),
    Sketcher.Constraint("Horizontal", 1, 2, 8, 2),
    Sketcher.Constraint("Vertical", 1, 2, 4, 2),
    Sketcher.Constraint("Vertical", 5, 2, 8, 2),
    Sketcher.Constraint("DistanceX", 0, 2, 0, 1, 8.2),
    Sketcher.Constraint("DistanceY", 1, 1, 1, 2, 1.4),
    Sketcher.Constraint("DistanceY", 3, 1, 3, 2, 1.2),
    Sketcher.Constraint("DistanceX", -1, 1, 5, 2, 4.0),
    Sketcher.Constraint("DistanceY", 1, 2, 2, 2, 2.0),
    Sketcher.Constraint("DistanceX", 2, 2, -1, 1, 8.3),
])
pocket12 = body.newObject("PartDesign::Pocket", "Pocket011")
pocket12.Profile = sketch24
pocket12.Length = 20
pocket12.Reversed = True

doc.recompute()
